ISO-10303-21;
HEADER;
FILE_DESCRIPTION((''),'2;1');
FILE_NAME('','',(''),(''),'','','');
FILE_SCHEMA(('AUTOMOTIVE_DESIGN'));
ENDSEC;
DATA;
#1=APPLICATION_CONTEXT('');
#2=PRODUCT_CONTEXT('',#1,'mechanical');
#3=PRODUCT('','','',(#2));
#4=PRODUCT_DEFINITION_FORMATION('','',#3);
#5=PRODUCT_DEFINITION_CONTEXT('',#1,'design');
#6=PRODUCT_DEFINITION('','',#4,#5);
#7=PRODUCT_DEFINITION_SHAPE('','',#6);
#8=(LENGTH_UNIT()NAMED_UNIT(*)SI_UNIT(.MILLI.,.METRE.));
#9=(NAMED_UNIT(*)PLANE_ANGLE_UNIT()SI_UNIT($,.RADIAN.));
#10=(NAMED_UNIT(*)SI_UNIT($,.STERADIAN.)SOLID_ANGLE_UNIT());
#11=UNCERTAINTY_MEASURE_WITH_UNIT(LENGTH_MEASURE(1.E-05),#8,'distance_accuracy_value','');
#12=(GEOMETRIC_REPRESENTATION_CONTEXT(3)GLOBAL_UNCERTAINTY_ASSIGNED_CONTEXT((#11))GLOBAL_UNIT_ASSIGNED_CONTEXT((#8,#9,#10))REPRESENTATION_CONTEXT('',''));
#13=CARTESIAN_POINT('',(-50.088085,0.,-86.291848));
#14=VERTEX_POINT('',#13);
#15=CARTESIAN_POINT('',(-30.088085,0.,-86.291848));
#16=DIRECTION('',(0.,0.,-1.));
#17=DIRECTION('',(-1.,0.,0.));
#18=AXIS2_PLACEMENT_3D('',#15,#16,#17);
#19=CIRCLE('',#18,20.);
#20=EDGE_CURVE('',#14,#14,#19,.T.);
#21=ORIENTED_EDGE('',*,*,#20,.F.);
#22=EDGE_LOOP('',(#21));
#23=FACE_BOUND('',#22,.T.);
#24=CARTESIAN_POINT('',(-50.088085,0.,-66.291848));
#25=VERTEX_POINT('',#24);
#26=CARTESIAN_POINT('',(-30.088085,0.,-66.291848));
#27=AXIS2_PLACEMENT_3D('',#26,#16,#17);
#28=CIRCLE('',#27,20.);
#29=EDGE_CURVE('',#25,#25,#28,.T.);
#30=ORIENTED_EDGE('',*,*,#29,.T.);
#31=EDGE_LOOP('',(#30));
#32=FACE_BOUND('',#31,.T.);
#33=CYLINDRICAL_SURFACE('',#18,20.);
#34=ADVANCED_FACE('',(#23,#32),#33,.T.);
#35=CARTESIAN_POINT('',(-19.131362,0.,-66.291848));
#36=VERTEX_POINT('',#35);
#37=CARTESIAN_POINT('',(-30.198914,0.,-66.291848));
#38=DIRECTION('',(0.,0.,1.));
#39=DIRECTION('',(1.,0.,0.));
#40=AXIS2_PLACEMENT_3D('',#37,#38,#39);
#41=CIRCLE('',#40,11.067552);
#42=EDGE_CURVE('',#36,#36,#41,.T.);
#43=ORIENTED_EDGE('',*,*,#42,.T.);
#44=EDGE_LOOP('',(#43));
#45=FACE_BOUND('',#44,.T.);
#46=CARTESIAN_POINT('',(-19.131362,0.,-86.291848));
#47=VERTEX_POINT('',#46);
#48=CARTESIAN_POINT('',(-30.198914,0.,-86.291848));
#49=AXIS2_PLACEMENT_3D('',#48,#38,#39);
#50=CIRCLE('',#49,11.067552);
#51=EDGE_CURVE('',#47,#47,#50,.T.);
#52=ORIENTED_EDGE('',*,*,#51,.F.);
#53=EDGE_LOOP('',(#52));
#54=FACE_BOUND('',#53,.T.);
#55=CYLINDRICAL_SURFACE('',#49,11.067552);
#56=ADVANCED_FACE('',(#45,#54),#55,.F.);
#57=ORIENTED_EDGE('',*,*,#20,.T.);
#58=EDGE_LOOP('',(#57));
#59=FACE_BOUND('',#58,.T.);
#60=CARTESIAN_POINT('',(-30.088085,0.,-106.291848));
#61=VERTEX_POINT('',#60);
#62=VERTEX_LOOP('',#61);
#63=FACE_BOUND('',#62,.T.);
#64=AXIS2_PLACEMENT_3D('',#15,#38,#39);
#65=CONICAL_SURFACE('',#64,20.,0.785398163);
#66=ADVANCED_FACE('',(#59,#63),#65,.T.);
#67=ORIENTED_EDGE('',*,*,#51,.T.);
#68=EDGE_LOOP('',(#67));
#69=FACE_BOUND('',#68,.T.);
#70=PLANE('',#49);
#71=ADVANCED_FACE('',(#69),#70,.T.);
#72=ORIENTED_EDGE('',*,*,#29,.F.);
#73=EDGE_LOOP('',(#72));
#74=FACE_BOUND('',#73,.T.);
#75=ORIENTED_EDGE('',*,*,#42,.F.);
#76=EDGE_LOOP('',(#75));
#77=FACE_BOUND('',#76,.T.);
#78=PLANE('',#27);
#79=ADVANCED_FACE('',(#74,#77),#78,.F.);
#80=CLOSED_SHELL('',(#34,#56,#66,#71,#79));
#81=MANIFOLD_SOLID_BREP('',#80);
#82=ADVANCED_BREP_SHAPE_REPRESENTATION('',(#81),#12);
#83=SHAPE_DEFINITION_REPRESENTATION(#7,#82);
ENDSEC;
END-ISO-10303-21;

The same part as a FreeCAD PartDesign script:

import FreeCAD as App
import Part
import Sketcher
from FreeCAD import Vector
Q = App.Units.Quantity


def add_polygon(sketch, points):
    """Adds a closed chain of lines whose ends are joined by coincident constraints."""
    first, n = sketch.GeometryCount, len(points)
    for a, b in zip(points, points[1:] + points[:1]):
        sketch.addGeometry(Part.LineSegment(App.Vector(*a, 0), App.Vector(*b, 0)), False)
    for i in range(n):
        sketch.addConstraint(Sketcher.Constraint("Coincident", first + i, 2, first + (i + 1) % n, 1))

doc = App.newDocument("Part")
body = doc.addObject("PartDesign::Body", "Body")

# Sketch on XZ plane
sketch1 = body.newObject("Sketcher::SketchObject", "Sketch")
sketch1.AttachmentSupport = (doc.getObject("XZ_Plane"), [""])
sketch1.MapMode = "FlatFace"
add_polygon(sketch1, [(-30, -106), (-30, -66), (-10, -66), (-10, -86)])  # lines 0-3
sketch1.addGeometry(Part.LineSegment(Vector(-30, -106, 0), Vector(-30, -66, 0)), True)  # axis
sketch1.addConstraint([
    Sketcher.Constraint("Vertical", 0),
    Sketcher.Constraint("Horizontal", 1),
    Sketcher.Constraint("Vertical", 2),
    Sketcher.Constraint("Vertical", 4),
    Sketcher.Constraint("Coincident", 4, 1, 3, 2),
    Sketcher.Constraint("Horizontal", 1, 2, 4, 2),
    Sketcher.Constraint("Equal", 1, 2),
    Sketcher.Constraint("DistanceX", 1, 1, 1, 2, Q("20 mm")),
    Sketcher.Constraint("DistanceY", 0, 1, 0, 2, Q("40 mm")),
    Sketcher.Constraint("DistanceX", 0, 2, -1, 1, Q("30.088085 mm")),
    Sketcher.Constraint("DistanceY", 0, 2, -1, 1, Q("66.291848 mm")),
])
revolution = body.newObject("PartDesign::Revolution", "Revolution")
revolution.Profile = sketch1
revolution.ReferenceAxis = (sketch1, ["Axis0"])
revolution.Angle = 360

# Sketch on XY plane
sketch2 = body.newObject("Sketcher::SketchObject", "Sketch001")
sketch2.AttachmentSupport = (doc.getObject("XY_Plane"), [""])
sketch2.MapMode = "FlatFace"
sketch2.AttachmentOffset = App.Placement(Vector(0, 0, -66.291848), App.Rotation())
sketch2.addGeometry(Part.Circle(Vector(-30, 0, 0), Vector(0, 0, 1), 11), False)
sketch2.addConstraint([
    Sketcher.Constraint("PointOnObject", 0, 3, -1),
    Sketcher.Constraint("Diameter", 0, Q("22.135104 mm")),
    Sketcher.Constraint("DistanceX", 0, 3, -1, 1, Q("30.198914 mm")),
])
pocket1 = body.newObject("PartDesign::Pocket", "Pocket")
pocket1.Profile = sketch2
pocket1.Length = 20

doc.recompute()
